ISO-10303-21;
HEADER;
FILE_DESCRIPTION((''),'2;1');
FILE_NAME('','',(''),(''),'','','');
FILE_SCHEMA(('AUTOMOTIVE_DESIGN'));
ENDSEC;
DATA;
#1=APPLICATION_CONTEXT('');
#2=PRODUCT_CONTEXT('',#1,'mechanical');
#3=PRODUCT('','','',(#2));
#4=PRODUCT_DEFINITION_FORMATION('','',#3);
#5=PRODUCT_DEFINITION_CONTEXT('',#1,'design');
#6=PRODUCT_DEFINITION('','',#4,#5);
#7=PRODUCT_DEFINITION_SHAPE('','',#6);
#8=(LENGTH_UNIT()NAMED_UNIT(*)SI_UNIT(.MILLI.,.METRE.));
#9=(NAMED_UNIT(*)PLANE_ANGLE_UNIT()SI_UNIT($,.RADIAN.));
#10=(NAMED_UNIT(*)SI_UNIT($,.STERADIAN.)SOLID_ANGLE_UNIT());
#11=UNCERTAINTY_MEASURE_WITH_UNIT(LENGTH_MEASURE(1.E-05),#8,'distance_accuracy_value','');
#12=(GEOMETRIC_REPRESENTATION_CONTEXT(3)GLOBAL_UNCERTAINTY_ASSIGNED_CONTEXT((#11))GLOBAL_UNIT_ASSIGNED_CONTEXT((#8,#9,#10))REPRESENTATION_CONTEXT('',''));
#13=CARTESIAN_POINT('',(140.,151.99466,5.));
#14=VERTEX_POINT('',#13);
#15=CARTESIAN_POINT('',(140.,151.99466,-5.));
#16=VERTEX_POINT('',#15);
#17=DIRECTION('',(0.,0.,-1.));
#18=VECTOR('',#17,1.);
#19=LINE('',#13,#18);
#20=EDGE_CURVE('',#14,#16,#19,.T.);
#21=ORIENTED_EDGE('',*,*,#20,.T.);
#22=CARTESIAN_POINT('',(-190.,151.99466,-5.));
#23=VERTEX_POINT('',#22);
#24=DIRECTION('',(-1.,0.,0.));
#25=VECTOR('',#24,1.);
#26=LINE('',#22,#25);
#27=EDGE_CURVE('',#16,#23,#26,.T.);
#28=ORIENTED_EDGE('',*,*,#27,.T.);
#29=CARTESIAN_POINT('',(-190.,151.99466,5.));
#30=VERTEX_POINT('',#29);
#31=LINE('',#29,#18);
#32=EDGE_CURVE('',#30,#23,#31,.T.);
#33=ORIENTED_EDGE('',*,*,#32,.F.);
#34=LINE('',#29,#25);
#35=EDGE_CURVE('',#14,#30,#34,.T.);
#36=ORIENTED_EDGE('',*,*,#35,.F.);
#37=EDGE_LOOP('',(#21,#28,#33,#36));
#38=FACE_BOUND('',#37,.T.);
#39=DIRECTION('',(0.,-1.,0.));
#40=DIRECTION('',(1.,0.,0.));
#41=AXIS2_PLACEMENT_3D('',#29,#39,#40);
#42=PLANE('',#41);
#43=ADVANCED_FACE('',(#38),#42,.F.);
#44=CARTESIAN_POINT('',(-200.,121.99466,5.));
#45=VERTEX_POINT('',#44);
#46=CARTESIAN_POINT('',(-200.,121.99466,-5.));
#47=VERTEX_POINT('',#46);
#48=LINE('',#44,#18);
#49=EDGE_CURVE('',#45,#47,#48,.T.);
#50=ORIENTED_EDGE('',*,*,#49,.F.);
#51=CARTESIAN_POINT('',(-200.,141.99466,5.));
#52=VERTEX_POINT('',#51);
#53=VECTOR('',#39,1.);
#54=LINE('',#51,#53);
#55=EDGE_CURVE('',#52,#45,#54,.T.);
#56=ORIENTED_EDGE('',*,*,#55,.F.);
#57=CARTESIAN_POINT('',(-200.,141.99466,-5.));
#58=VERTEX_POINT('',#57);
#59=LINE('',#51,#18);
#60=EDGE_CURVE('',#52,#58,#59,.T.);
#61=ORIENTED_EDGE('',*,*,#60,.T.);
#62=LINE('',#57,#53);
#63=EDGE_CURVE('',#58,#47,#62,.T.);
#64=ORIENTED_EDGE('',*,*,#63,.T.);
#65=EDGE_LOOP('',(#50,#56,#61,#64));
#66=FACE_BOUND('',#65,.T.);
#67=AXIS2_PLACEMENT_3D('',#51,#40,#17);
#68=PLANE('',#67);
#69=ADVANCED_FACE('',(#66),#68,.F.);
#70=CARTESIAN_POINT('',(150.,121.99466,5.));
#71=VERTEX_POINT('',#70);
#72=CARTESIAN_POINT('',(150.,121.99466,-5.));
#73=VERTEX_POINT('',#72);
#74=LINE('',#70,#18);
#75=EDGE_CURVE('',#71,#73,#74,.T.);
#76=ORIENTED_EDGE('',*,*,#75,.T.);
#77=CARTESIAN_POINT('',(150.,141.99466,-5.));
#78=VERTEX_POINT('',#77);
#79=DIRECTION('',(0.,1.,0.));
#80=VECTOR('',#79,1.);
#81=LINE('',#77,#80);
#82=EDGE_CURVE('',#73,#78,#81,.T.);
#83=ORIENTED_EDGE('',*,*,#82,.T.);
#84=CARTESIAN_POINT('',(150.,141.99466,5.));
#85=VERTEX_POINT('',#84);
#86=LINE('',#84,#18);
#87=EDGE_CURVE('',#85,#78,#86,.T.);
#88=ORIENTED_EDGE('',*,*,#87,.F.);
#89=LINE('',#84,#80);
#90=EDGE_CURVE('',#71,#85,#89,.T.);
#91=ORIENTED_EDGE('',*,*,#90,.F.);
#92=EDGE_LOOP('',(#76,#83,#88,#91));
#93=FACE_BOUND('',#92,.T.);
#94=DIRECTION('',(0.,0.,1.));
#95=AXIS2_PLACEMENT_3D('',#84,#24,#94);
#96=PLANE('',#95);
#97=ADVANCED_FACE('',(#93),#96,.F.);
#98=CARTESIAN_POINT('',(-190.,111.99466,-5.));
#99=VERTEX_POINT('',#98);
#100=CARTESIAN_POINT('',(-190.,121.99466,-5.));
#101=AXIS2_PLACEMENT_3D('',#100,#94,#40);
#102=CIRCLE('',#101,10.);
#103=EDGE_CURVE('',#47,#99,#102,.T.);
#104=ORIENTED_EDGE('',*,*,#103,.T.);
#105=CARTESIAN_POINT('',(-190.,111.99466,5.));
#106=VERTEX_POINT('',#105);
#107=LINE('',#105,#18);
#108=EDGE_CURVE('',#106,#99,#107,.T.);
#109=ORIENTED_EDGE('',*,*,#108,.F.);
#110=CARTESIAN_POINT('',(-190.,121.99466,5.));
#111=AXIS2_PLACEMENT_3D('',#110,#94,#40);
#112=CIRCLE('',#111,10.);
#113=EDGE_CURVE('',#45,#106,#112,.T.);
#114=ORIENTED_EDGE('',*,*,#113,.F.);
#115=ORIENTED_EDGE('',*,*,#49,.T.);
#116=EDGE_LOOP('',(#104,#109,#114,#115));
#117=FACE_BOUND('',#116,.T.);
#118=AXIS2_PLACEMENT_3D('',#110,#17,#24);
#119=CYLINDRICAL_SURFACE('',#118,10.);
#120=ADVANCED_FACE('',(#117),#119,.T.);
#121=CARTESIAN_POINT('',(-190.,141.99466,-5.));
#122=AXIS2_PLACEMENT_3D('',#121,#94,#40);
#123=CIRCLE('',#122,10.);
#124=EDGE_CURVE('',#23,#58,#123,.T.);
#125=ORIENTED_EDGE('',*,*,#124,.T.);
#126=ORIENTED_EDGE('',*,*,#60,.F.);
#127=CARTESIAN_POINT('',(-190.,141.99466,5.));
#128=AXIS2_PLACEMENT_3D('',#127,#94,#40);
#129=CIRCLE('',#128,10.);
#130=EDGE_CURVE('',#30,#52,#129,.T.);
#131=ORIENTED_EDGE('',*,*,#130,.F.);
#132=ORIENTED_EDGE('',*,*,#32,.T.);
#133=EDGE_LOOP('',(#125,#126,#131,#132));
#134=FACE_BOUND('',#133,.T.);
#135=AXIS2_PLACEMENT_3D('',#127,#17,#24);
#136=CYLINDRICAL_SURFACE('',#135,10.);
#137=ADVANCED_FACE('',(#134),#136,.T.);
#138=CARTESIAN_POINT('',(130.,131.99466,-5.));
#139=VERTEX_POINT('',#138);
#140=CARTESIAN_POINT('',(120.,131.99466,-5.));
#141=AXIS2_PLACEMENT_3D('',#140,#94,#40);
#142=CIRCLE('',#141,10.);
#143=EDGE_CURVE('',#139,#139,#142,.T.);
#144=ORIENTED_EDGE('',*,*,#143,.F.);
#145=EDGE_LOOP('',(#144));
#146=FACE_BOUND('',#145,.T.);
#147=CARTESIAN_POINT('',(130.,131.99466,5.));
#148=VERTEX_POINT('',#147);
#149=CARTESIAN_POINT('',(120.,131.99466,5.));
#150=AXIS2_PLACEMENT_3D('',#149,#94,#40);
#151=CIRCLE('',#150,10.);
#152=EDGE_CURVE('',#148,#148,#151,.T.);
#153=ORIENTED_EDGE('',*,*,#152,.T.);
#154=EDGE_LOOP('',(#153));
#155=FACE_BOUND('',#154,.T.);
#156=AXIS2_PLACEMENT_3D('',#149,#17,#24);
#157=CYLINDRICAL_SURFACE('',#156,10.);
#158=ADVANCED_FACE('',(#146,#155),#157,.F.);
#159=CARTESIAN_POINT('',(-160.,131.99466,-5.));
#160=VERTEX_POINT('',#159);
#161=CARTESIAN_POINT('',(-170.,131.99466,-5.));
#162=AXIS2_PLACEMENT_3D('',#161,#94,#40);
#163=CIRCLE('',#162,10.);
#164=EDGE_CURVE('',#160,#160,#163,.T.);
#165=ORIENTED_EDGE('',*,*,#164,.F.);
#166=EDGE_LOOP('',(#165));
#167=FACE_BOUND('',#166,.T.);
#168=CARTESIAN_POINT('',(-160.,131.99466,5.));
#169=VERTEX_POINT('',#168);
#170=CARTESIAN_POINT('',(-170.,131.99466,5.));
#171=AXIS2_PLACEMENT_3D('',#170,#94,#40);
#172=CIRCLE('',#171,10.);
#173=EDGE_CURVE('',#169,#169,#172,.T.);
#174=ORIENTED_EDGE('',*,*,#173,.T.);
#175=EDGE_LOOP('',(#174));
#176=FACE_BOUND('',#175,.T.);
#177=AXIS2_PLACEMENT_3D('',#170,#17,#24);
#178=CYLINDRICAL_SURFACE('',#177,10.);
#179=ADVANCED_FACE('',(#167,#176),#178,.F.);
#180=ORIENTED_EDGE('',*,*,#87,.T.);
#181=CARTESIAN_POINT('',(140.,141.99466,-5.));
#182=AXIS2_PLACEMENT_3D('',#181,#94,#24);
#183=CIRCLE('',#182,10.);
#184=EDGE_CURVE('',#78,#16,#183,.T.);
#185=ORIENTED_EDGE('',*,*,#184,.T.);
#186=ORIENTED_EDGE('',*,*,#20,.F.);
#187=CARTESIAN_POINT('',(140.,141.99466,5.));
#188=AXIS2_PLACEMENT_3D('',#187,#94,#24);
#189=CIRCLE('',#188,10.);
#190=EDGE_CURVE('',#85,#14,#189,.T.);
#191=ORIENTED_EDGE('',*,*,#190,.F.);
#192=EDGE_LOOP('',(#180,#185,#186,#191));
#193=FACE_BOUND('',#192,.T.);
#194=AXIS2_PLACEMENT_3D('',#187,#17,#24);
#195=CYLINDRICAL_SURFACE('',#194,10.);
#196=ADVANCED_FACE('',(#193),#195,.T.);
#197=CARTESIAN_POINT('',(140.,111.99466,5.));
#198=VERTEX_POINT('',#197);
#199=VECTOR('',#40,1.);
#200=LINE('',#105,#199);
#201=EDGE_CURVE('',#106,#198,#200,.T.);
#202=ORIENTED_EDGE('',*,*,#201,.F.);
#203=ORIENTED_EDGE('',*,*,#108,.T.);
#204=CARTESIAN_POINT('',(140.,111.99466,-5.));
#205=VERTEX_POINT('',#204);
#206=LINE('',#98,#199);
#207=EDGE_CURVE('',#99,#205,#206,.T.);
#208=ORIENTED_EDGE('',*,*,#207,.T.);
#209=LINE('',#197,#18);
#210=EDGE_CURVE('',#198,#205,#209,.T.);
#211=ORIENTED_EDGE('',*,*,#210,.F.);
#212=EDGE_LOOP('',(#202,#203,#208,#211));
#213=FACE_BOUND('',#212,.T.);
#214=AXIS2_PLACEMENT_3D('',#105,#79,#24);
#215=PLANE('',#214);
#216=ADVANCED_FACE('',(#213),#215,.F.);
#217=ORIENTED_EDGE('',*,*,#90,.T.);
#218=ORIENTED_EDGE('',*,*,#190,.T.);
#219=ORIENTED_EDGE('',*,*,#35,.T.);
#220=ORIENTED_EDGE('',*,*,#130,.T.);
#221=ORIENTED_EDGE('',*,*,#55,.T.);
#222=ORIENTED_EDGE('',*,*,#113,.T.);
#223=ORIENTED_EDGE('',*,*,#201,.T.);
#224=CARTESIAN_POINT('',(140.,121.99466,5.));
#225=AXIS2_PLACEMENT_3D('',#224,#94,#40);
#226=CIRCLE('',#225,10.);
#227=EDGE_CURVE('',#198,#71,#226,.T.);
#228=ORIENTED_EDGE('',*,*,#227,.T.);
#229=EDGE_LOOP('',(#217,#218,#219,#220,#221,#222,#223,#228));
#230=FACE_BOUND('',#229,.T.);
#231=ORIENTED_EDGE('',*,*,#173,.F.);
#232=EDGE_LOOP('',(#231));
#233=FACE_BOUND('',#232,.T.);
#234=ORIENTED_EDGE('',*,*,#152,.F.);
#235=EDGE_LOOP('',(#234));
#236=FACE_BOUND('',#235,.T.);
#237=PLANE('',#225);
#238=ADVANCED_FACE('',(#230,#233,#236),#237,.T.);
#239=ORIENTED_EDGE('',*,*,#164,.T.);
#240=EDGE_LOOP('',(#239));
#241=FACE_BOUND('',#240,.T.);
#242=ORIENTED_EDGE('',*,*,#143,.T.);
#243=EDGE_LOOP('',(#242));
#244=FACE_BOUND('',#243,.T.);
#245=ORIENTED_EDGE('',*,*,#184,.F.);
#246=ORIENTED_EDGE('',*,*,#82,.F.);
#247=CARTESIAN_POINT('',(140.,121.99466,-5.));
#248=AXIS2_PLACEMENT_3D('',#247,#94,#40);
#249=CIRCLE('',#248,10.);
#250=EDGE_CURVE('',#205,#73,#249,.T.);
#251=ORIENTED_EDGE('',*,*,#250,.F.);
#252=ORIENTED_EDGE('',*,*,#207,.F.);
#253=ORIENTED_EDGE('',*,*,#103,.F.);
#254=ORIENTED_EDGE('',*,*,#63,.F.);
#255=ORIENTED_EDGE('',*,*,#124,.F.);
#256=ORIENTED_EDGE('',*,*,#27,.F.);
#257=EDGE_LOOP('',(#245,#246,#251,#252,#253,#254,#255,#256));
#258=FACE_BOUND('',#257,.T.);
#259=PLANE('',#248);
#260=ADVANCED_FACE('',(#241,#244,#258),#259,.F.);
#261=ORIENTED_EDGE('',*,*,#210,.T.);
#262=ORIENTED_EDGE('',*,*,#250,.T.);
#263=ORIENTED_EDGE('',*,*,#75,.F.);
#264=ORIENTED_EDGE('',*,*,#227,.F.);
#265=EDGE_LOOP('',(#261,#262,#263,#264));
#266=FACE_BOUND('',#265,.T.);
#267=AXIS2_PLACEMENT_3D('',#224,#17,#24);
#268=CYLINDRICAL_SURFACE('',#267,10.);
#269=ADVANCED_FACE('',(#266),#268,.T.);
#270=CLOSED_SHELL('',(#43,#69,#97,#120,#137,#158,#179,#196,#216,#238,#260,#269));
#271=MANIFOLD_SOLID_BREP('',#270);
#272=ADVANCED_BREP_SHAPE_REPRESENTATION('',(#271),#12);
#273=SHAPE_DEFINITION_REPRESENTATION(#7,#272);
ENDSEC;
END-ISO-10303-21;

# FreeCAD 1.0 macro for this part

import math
import FreeCAD as App
import Part
import Sketcher

V = App.Vector

doc = App.newDocument("Part")
params = doc.addObject("Spreadsheet::Sheet", "Params")
for row, (alias, value) in enumerate([
    ("sketch1_diameter", "20 mm"),
    ("sketch1_width", "330 mm"),
    ("sketch1_height", "20 mm"),
    ("pad1_length", "10 mm"),
], start=1):
    params.set(f"A{row}", alias)
    params.set(f"B{row}", "=" + value)
    params.setAlias(f"B{row}", alias)

body = doc.addObject("PartDesign::Body", "Body")

# Sketch on XY plane
sketch1 = doc.addObject("Sketcher::SketchObject", "Sketch")
body.addObject(sketch1)
sketch1.AttachmentSupport = (doc.XY_Plane, [""])
sketch1.MapMode = "FlatFace"
sketch1.addGeometry([
    Part.LineSegment(V(140, 152, 0), V(-190, 152, 0)),  # 0
    Part.ArcOfCircle(Part.Circle(V(-190, 142, 0), V(0, 0, 1), 10), math.radians(90), math.radians(180)),  # 1
    Part.LineSegment(V(-200, 142, 0), V(-200, 122, 0)),  # 2
    Part.ArcOfCircle(Part.Circle(V(-190, 122, 0), V(0, 0, 1), 10), math.radians(180), math.radians(270)),  # 3
    Part.LineSegment(V(-190, 112, 0), V(140, 112, 0)),  # 4
    Part.ArcOfCircle(Part.Circle(V(140, 122, 0), V(0, 0, 1), 10), math.radians(-90), math.radians(0)),  # 5
    Part.LineSegment(V(150, 122, 0), V(150, 142, 0)),  # 6
    Part.ArcOfCircle(Part.Circle(V(140, 142, 0), V(0, 0, 1), 10), math.radians(0), math.radians(90)),  # 7
    Part.Circle(V(120, 132, 0), V(0, 0, 1), 10),  # 8
    Part.Circle(V(-170, 132, 0), V(0, 0, 1), 10),  # 9
], False)
sketch1.addConstraint([
    Sketcher.Constraint("Tangent", 0, 2, 1, 1),
    Sketcher.Constraint("Tangent", 1, 2, 2, 1),
    Sketcher.Constraint("Tangent", 2, 2, 3, 1),
    Sketcher.Constraint("Tangent", 3, 2, 4, 1),
    Sketcher.Constraint("Tangent", 4, 2, 5, 1),
    Sketcher.Constraint("Tangent", 5, 2, 6, 1),
    Sketcher.Constraint("Tangent", 6, 2, 7, 1),
    Sketcher.Constraint("Tangent", 7, 2, 0, 1),
    Sketcher.Constraint("Horizontal", 0),
    Sketcher.Constraint("Vertical", 2),
    Sketcher.Constraint("Horizontal", 4),
    Sketcher.Constraint("Vertical", 6),
    Sketcher.Constraint("Equal", 1, 3),
    Sketcher.Constraint("Equal", 3, 5),
    Sketcher.Constraint("Equal", 5, 7),
    Sketcher.Constraint("Equal", 7, 8),
    Sketcher.Constraint("Equal", 8, 9),
    Sketcher.Constraint("Horizontal", 8, 3, 9, 3),
    Sketcher.Constraint("Diameter", 8, 20.0),
    Sketcher.Constraint("DistanceX", 0, 2, 0, 1, 330.0),
    Sketcher.Constraint("DistanceY", 2, 2, 2, 1, 20.0),
    Sketcher.Constraint("DistanceX", 1, 3, -1, 1, 190.0),
    Sketcher.Constraint("DistanceX", -1, 1, 8, 3, 120.0),
    Sketcher.Constraint("DistanceX", 9, 3, -1, 1, 170.0),
    Sketcher.Constraint("DistanceY", 8, 3, 7, 3, 10.0),
    Sketcher.Constraint("DistanceY", -1, 1, 1, 3, 141.99466),
])
sketch1.setExpression("Constraints[18]", "Params.sketch1_diameter")
sketch1.setExpression("Constraints[19]", "Params.sketch1_width")
sketch1.setExpression("Constraints[20]", "Params.sketch1_height")
pad1 = doc.addObject("PartDesign::Pad", "Pad")
body.addObject(pad1)
pad1.Profile = sketch1
pad1.setExpression("Length", "Params.pad1_length")
pad1.Midplane = True

doc.recompute()
